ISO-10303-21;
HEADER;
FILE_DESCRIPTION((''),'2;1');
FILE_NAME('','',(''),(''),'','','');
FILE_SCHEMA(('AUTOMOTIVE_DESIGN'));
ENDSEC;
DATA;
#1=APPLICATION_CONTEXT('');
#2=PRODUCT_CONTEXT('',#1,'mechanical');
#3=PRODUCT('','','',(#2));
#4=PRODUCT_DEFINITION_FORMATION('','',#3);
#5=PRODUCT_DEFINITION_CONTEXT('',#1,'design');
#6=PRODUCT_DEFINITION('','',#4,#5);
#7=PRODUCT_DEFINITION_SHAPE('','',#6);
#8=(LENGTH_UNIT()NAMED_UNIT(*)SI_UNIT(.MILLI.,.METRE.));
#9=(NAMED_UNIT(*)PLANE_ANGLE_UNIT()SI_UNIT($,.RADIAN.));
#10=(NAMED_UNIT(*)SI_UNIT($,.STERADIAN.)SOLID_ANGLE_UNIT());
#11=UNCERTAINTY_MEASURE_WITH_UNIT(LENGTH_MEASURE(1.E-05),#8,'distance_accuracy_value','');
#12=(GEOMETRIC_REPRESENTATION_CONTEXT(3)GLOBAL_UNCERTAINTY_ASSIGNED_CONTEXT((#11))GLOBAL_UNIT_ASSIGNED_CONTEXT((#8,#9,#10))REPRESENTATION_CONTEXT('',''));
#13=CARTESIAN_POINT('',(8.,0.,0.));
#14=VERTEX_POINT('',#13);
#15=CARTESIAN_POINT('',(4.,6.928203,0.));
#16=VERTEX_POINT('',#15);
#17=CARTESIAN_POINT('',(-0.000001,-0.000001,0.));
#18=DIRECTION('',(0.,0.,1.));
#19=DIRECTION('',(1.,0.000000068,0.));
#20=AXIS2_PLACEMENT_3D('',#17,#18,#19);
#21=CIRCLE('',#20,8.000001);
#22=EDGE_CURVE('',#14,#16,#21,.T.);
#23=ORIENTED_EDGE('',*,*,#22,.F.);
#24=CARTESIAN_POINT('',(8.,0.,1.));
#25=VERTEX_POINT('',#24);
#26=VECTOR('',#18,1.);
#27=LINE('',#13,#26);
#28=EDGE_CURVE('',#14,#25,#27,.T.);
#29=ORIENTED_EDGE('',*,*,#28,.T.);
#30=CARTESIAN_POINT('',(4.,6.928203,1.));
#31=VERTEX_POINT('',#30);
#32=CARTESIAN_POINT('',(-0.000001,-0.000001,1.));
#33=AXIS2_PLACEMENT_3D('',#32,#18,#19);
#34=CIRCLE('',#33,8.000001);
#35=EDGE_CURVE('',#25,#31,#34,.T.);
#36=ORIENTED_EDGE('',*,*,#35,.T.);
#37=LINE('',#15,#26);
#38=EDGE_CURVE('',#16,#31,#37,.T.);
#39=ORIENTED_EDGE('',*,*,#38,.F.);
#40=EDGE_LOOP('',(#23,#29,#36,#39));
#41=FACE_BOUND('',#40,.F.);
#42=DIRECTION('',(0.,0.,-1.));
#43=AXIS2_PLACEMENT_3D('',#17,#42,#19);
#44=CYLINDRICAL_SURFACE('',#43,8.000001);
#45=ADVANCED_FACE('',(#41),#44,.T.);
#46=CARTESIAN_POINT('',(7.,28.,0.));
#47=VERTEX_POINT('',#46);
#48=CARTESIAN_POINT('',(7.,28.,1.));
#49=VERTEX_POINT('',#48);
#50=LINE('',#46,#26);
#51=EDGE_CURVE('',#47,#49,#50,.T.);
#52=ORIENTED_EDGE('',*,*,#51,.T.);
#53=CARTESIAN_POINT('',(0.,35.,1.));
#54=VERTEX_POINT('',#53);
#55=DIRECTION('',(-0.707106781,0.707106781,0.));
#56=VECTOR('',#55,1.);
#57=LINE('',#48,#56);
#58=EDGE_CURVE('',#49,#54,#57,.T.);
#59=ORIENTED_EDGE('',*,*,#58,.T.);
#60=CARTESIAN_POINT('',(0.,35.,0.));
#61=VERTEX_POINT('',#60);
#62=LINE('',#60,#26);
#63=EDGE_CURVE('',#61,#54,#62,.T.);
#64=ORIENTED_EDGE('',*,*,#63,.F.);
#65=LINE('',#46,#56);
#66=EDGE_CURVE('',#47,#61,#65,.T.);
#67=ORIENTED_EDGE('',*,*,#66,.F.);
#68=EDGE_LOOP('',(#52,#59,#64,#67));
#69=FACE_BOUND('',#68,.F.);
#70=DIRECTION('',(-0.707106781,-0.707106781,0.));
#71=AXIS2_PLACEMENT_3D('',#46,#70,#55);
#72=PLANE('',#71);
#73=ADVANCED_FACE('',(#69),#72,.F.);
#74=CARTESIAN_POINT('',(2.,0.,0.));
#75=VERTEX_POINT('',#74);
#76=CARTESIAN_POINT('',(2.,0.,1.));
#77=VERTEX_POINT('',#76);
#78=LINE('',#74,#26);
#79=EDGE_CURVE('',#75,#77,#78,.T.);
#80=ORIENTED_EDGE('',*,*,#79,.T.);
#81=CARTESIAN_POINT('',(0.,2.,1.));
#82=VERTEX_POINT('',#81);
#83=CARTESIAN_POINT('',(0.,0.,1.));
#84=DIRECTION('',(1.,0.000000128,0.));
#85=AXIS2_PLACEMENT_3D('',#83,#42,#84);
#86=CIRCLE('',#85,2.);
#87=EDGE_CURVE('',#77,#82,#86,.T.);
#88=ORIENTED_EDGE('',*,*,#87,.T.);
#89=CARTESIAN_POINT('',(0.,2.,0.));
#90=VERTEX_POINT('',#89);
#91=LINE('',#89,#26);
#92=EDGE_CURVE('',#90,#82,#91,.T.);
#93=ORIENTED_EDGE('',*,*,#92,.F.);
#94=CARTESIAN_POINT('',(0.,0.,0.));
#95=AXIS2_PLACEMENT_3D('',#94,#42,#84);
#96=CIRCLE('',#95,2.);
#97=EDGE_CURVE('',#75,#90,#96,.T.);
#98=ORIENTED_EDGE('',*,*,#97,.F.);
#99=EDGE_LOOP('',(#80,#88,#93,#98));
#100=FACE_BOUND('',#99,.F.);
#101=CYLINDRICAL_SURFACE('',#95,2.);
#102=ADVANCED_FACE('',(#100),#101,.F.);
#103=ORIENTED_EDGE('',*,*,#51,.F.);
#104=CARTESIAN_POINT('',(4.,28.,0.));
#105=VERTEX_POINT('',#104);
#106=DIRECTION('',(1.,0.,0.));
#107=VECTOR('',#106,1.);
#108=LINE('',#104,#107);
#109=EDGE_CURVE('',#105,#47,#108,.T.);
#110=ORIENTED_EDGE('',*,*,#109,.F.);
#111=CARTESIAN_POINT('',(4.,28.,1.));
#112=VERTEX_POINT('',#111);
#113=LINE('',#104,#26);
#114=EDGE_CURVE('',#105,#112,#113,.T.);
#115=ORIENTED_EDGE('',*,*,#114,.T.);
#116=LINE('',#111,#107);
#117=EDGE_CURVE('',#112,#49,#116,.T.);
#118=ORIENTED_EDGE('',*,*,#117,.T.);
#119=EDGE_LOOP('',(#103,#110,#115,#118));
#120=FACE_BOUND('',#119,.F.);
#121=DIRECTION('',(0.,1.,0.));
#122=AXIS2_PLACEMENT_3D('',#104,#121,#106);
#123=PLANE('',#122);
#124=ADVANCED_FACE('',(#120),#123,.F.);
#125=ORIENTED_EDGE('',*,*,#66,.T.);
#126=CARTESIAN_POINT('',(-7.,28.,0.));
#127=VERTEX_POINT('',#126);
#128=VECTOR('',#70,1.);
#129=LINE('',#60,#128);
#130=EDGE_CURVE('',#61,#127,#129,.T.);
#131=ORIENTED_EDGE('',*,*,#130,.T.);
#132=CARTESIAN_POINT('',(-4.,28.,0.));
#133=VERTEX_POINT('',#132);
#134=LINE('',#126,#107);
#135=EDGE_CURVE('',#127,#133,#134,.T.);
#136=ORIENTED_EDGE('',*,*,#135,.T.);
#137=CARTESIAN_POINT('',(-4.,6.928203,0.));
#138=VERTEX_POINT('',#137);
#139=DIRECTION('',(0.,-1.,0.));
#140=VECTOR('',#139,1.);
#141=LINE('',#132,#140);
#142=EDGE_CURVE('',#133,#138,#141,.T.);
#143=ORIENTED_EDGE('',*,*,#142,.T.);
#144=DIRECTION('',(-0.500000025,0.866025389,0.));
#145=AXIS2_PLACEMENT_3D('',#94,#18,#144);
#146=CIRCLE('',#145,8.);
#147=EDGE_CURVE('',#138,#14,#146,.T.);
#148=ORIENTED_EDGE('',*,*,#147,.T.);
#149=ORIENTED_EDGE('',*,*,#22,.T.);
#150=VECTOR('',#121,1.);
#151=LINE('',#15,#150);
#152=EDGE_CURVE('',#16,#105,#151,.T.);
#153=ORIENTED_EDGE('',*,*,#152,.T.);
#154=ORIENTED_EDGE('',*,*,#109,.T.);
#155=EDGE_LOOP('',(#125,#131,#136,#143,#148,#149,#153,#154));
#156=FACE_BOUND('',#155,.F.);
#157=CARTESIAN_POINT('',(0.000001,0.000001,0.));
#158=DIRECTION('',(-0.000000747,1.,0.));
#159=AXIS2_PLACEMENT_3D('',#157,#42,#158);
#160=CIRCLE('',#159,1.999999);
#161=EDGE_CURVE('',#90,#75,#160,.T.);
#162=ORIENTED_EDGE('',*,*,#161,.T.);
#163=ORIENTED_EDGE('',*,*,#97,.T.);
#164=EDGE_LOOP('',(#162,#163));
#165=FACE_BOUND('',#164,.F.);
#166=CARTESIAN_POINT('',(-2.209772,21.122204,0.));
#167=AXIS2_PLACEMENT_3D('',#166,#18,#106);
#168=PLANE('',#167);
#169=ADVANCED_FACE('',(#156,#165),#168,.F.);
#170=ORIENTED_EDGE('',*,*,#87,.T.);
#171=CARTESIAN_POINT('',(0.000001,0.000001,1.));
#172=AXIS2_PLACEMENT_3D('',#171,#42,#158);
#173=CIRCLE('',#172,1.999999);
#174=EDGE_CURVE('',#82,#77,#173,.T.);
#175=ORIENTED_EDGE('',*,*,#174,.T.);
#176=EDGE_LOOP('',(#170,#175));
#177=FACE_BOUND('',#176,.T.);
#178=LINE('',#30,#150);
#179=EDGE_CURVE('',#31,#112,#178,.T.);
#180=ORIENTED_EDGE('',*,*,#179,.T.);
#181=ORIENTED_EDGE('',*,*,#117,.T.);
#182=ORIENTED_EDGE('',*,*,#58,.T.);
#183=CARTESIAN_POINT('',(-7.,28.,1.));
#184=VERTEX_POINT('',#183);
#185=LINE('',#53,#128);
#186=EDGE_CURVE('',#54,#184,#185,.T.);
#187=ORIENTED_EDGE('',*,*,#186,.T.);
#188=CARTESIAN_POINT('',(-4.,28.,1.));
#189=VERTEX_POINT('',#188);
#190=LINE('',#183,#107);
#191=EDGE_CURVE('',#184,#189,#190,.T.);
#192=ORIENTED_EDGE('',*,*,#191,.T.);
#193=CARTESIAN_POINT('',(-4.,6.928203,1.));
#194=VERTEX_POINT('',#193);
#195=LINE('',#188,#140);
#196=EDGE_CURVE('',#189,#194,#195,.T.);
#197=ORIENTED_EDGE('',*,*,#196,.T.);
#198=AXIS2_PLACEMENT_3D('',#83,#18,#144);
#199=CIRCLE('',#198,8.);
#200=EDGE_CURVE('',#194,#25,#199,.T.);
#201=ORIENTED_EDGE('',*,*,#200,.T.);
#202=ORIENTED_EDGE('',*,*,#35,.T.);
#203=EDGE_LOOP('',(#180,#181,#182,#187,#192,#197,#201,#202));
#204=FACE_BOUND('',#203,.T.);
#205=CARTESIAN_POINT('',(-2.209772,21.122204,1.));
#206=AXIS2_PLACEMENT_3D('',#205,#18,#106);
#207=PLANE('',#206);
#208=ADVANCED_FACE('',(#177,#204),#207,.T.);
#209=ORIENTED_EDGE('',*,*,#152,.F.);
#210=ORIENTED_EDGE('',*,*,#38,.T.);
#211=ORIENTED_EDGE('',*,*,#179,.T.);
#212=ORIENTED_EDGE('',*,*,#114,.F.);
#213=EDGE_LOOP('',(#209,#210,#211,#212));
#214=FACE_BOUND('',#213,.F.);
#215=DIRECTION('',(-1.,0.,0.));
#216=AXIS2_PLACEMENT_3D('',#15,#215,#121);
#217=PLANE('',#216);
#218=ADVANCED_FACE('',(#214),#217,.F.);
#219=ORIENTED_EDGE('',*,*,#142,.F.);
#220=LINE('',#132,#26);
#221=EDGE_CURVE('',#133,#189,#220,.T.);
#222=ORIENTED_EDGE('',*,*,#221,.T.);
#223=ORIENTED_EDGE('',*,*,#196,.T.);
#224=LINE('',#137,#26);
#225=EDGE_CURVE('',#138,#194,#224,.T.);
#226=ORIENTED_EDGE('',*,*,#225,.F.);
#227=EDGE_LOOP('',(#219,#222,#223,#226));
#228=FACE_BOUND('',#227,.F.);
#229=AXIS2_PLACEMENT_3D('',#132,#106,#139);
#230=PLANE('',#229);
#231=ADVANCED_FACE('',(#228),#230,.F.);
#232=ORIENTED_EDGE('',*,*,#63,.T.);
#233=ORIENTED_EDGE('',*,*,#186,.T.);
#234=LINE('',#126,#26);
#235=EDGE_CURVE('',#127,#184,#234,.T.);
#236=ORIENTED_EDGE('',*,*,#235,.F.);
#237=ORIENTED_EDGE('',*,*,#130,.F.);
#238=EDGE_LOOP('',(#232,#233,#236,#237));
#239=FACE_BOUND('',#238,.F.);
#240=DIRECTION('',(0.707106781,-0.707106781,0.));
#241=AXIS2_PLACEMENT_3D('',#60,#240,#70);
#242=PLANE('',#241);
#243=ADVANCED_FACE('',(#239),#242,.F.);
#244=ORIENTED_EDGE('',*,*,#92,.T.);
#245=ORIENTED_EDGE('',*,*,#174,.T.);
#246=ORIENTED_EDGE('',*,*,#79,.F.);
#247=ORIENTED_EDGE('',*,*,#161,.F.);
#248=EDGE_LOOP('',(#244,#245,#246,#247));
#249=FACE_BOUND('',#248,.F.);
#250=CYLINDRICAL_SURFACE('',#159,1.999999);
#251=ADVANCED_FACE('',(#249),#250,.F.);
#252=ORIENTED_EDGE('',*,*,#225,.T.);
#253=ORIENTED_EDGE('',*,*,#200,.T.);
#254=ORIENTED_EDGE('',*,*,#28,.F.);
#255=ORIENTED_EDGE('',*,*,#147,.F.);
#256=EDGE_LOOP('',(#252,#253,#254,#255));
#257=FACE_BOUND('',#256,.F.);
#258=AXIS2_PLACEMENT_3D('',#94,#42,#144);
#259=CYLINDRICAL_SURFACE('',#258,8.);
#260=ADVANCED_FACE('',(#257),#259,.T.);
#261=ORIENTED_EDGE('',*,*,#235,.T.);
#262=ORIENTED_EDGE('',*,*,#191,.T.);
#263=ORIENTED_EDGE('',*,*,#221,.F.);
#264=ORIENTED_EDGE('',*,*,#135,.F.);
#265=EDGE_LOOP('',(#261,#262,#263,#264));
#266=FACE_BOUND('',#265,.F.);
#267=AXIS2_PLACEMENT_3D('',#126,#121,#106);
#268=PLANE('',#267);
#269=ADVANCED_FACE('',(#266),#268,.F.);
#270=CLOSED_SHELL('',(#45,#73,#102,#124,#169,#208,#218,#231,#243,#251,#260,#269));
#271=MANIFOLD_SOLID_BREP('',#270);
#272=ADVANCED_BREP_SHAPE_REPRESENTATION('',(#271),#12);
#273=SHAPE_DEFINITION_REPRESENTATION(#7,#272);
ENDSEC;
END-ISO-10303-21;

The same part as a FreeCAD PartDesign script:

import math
import FreeCAD as App
import Part
import Sketcher

V = App.Vector
Q = App.Units.Quantity

doc = App.newDocument("Part")
params = doc.addObject("Spreadsheet::Sheet", "Params")
for row, (alias, value) in enumerate([
    ("sketch1_radius", "8 mm"),
    ("sketch1_radius2", "2 mm"),
    ("sketch1_width", "3 mm"),
    ("pad1_length", "1 mm"),
], start=1):
    params.set(f"A{row}", alias)
    params.set(f"B{row}", "=" + value)
    params.setAlias(f"B{row}", alias)

body = doc.addObject("PartDesign::Body", "Body")

sketch1 = body.newObject("Sketcher::SketchObject", "Sketch")
sketch1.AttachmentSupport = (doc.getObject("XY_Plane"), [""])
sketch1.MapMode = "FlatFace"
sketch1.addGeometry(Part.LineSegment(V(4, 6.928203, 0), V(4, 28, 0)), False)
sketch1.addGeometry(Part.LineSegment(V(4, 28, 0), V(7, 28, 0)), False)
sketch1.addGeometry(Part.LineSegment(V(7, 28, 0), V(0, 35, 0)), False)
sketch1.addGeometry(Part.LineSegment(V(0, 35, 0), V(-7, 28, 0)), False)
sketch1.addGeometry(Part.LineSegment(V(-7, 28, 0), V(-4, 28, 0)), False)
sketch1.addGeometry(Part.LineSegment(V(-4, 28, 0), V(-4, 6.928203, 0)), False)
sketch1.addGeometry(Part.ArcOfCircle(Part.Circle(V(0, 0, 0), V(0, 0, 1), 8), math.radians(120.000002), math.radians(360)), False)
sketch1.addGeometry(Part.ArcOfCircle(Part.Circle(V(-0.000001, -0.000001, 0), V(0, 0, 1), 8.000001), math.radians(0.000004), math.radians(59.999998)), False)
sketch1.addGeometry(Part.ArcOfCircle(Part.Circle(V(0, 0, 0), V(0, 0, 1), 2), math.radians(89.999993), math.radians(360.000007)), False)
sketch1.addGeometry(Part.ArcOfCircle(Part.Circle(V(0.000001, 0.000001, 0), V(0, 0, 1), 1.999999), math.radians(-0.000043), math.radians(90.000043)), False)
sketch1.addConstraint(Sketcher.Constraint("Coincident", 0, 2, 1, 1))
sketch1.addConstraint(Sketcher.Constraint("Coincident", 1, 2, 2, 1))
sketch1.addConstraint(Sketcher.Constraint("Coincident", 2, 2, 3, 1))
sketch1.addConstraint(Sketcher.Constraint("Coincident", 3, 2, 4, 1))
sketch1.addConstraint(Sketcher.Constraint("Coincident", 4, 2, 5, 1))
sketch1.addConstraint(Sketcher.Constraint("Coincident", 5, 2, 6, 1))
sketch1.addConstraint(Sketcher.Constraint("Tangent", 6, 2, 7, 1))
sketch1.addConstraint(Sketcher.Constraint("Coincident", 7, 2, 0, 1))
sketch1.addConstraint(Sketcher.Constraint("Tangent", 8, 1, 9, 2))
sketch1.addConstraint(Sketcher.Constraint("Coincident", 9, 1, 8, 2))
sketch1.addConstraint(Sketcher.Constraint("Vertical", 0))
sketch1.addConstraint(Sketcher.Constraint("Horizontal", 1))
sketch1.addConstraint(Sketcher.Constraint("Horizontal", 4))
sketch1.addConstraint(Sketcher.Constraint("Vertical", 5))
sketch1.addConstraint(Sketcher.Constraint("Coincident", 6, 3, -1, 1))
sketch1.addConstraint(Sketcher.Constraint("Coincident", 8, 3, -1, 1))
sketch1.addConstraint(Sketcher.Constraint("Equal", 6, 7))
sketch1.addConstraint(Sketcher.Constraint("Symmetric", 1, 2, 3, 2, -2))
sketch1.addConstraint(Sketcher.Constraint("PointOnObject", 2, 2, -2))
sketch1.addConstraint(Sketcher.Constraint("PointOnObject", 6, 2, -1))
sketch1.addConstraint(Sketcher.Constraint("PointOnObject", 8, 1, -2))
sketch1.addConstraint(Sketcher.Constraint("PointOnObject", 9, 1, -1))
sketch1.addConstraint(Sketcher.Constraint("Perpendicular", 2, 3))
sketch1.addConstraint(Sketcher.Constraint("Horizontal", 5, 2, 7, 2))
sketch1.addConstraint(Sketcher.Constraint("Radius", 6, Q("8 mm")))
sketch1.addConstraint(Sketcher.Constraint("Radius", 8, Q("2 mm")))
sketch1.addConstraint(Sketcher.Constraint("DistanceX", 1, 1, 1, 2, Q("3 mm")))
sketch1.addConstraint(Sketcher.Constraint("DistanceX", -1, 1, 0, 2, Q("4 mm")))
sketch1.addConstraint(Sketcher.Constraint("DistanceY", -1, 1, 0, 2, Q("28 mm")))
sketch1.setExpression("Constraints[24]", "Params.sketch1_radius")
sketch1.setExpression("Constraints[25]", "Params.sketch1_radius2")
sketch1.setExpression("Constraints[26]", "Params.sketch1_width")
pad1 = body.newObject("PartDesign::Pad", "Pad")
pad1.Profile = sketch1
pad1.setExpression("Length", "Params.pad1_length")

doc.recompute()
